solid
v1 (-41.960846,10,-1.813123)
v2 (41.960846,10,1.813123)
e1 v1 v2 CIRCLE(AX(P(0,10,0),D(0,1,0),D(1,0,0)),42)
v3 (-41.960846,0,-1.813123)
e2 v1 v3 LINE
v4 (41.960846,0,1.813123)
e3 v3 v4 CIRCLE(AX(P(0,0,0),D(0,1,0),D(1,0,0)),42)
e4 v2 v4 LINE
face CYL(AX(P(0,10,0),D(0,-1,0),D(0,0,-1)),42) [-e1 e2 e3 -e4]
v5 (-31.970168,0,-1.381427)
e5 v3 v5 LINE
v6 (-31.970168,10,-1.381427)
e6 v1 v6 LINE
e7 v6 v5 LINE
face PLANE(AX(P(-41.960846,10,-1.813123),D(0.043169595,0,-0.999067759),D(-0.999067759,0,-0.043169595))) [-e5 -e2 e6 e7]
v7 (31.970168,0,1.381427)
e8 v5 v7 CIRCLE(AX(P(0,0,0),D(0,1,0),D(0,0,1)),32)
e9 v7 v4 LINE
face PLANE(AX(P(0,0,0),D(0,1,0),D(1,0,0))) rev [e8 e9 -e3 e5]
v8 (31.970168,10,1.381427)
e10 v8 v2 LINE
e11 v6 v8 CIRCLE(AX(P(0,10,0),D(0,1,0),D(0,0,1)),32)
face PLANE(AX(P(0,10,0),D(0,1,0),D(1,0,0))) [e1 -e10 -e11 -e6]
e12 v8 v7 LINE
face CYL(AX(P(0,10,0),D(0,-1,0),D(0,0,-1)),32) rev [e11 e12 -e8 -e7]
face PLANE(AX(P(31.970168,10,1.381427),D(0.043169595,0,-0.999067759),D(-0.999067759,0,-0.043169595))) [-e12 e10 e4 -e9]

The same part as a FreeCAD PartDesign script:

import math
import FreeCAD as App
import Part
import Sketcher
Q = App.Units.Quantity

doc = App.newDocument("Part")
body = doc.addObject("PartDesign::Body", "Body")

# Sketch on XZ plane
sketch1 = doc.addObject("Sketcher::SketchObject", "Sketch")
body.addObject(sketch1)
sketch1.AttachmentSupport = (doc.XZ_Plane, [""])
sketch1.MapMode = "FlatFace"
sketch1.addGeometry([
    Part.ArcOfCircle(Part.Circle(App.Vector(0, 0, 0), App.Vector(0, 0, 1), 32), math.radians(2), math.radians(182)),
    Part.LineSegment(App.Vector(-32, -1, 0), App.Vector(-42, -2, 0)),
    Part.ArcOfCircle(Part.Circle(App.Vector(0, 0, 0), App.Vector(0, 0, 1), 42), math.radians(2), math.radians(182)),
    Part.LineSegment(App.Vector(42, 2, 0), App.Vector(32, 1, 0)),
], False)
sketch1.addConstraint([
    Sketcher.Constraint("Coincident", 0, 2, 1, 1),
    Sketcher.Constraint("Coincident", 1, 2, 2, 2),
    Sketcher.Constraint("Coincident", 2, 1, 3, 1),
    Sketcher.Constraint("Coincident", 3, 2, 0, 1),
    Sketcher.Constraint("Coincident", 0, 3, -1, 1),
    Sketcher.Constraint("Coincident", 2, 3, -1, 1),
    Sketcher.Constraint("Parallel", 1, 3),
    Sketcher.Constraint("Radius", 0, Q("32 mm")),
    Sketcher.Constraint("Radius", 2, Q("42 mm")),
    Sketcher.Constraint("DistanceX", 0, 2, -1, 1, Q("31.970168 mm")),
    Sketcher.Constraint("DistanceX", -1, 1, 3, 2, Q("31.970168 mm")),
    Sketcher.Constraint("DistanceY", 0, 2, 2, 1, Q("3.19455 mm")),
])
pad1 = doc.addObject("PartDesign::Pad", "Pad")
body.addObject(pad1)
pad1.Profile = sketch1
pad1.Length = 10
pad1.Reversed = True

doc.recompute()
